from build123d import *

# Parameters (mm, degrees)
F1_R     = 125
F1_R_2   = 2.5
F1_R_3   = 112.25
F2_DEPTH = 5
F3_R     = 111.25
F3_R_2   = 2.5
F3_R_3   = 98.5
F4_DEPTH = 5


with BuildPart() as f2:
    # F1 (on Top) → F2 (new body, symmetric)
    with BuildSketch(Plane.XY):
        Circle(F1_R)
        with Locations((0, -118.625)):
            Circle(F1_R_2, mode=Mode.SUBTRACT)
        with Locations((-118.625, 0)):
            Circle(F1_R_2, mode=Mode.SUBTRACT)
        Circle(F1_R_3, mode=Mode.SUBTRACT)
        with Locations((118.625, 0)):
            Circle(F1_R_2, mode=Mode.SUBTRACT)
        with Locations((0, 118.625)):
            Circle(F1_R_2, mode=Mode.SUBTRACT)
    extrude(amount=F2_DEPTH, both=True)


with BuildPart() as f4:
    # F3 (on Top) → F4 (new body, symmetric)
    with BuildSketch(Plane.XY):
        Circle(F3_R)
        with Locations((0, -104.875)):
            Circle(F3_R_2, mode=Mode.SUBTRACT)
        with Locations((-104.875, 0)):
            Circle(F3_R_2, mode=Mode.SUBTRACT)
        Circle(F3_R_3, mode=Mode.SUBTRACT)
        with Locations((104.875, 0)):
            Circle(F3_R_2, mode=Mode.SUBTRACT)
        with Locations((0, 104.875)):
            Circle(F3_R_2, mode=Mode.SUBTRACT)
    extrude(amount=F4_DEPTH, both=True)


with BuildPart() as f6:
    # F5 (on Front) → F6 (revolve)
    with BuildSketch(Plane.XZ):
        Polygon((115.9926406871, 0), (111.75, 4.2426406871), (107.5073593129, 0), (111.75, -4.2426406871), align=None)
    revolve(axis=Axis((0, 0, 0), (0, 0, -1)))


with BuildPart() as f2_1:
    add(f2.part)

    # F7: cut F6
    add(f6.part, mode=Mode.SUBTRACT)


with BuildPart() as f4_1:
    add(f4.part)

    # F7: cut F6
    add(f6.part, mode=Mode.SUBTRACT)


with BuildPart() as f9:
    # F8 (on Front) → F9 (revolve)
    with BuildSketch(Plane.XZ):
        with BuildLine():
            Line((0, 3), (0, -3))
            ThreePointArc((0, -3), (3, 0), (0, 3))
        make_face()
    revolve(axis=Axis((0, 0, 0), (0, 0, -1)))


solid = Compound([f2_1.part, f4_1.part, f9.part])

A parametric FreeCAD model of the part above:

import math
import FreeCAD as App
import Part
import Sketcher

V = App.Vector
Q = App.Units.Quantity


def add_polygon(sketch, points):
    """Adds a closed chain of lines whose ends are joined by coincident constraints."""
    first, n = sketch.GeometryCount, len(points)
    for a, b in zip(points, points[1:] + points[:1]):
        sketch.addGeometry(Part.LineSegment(App.Vector(*a, 0), App.Vector(*b, 0)), False)
    for i in range(n):
        sketch.addConstraint(Sketcher.Constraint("Coincident", first + i, 2, first + (i + 1) % n, 1))

doc = App.newDocument("Part")
body = doc.addObject("PartDesign::Body", "Body")

# Sketch on XY plane
sketch1 = body.newObject("Sketcher::SketchObject", "Sketch")
sketch1.AttachmentSupport = (doc.getObject("XY_Plane"), [""])
sketch1.MapMode = "FlatFace"
sketch1.addGeometry([
    Part.Circle(V(0, 0, 0), V(0, 0, 1), 125),  # 0
    Part.Circle(V(0, -118.6, 0), V(0, 0, 1), 2.5),  # 1
    Part.Circle(V(-118.6, 0, 0), V(0, 0, 1), 2.5),  # 2
    Part.Circle(V(0, 0, 0), V(0, 0, 1), 112.2),  # 3
    Part.Circle(V(118.6, 0, 0), V(0, 0, 1), 2.5),  # 4
    Part.Circle(V(0, 118.6, 0), V(0, 0, 1), 2.5),  # 5
], False)
sketch1.addConstraint([
    Sketcher.Constraint("Coincident", 0, 3, -1, 1),
    Sketcher.Constraint("Coincident", 3, 3, -1, 1),
    Sketcher.Constraint("Equal", 1, 2),
    Sketcher.Constraint("Equal", 2, 4),
    Sketcher.Constraint("Equal", 4, 5),
    Sketcher.Constraint("Symmetric", 2, 3, 4, 3, -1, 1),
    Sketcher.Constraint("Symmetric", 1, 3, 5, 3, -1, 1),
    Sketcher.Constraint("PointOnObject", 1, 3, -2),
    Sketcher.Constraint("PointOnObject", 2, 3, -1),
    Sketcher.Constraint("Diameter", 0, Q("250 mm")),
    Sketcher.Constraint("Diameter", 1, Q("5 mm")),
    Sketcher.Constraint("Diameter", 3, Q("224.5 mm")),
    Sketcher.Constraint("DistanceX", 2, 3, 4, 3, Q("237.25 mm")),
    Sketcher.Constraint("DistanceY", 1, 3, 5, 3, Q("237.25 mm")),
])
pad1 = body.newObject("PartDesign::Pad", "Pad")
pad1.Profile = sketch1
pad1.Length = 10
pad1.Midplane = True
body2 = doc.addObject("PartDesign::Body", "Body001")

# Sketch on XY plane
sketch2 = body2.newObject("Sketcher::SketchObject", "Sketch001")
sketch2.AttachmentSupport = (doc.getObject("XY_Plane001"), [""])
sketch2.MapMode = "FlatFace"
sketch2.addGeometry([
    Part.Circle(V(0, 0, 0), V(0, 0, 1), 111.2),  # 0
    Part.Circle(V(0, -104.9, 0), V(0, 0, 1), 2.5),  # 1
    Part.Circle(V(-104.9, 0, 0), V(0, 0, 1), 2.5),  # 2
    Part.Circle(V(0, 0, 0), V(0, 0, 1), 98.5),  # 3
    Part.Circle(V(104.9, 0, 0), V(0, 0, 1), 2.5),  # 4
    Part.Circle(V(0, 104.9, 0), V(0, 0, 1), 2.5),  # 5
], False)
sketch2.addConstraint([
    Sketcher.Constraint("Coincident", 0, 3, -1, 1),
    Sketcher.Constraint("Coincident", 3, 3, -1, 1),
    Sketcher.Constraint("Equal", 1, 2),
    Sketcher.Constraint("Equal", 2, 4),
    Sketcher.Constraint("Equal", 4, 5),
    Sketcher.Constraint("Symmetric", 2, 3, 4, 3, -1, 1),
    Sketcher.Constraint("Symmetric", 1, 3, 5, 3, -1, 1),
    Sketcher.Constraint("PointOnObject", 1, 3, -2),
    Sketcher.Constraint("PointOnObject", 2, 3, -1),
    Sketcher.Constraint("Diameter", 1, Q("5 mm")),
    Sketcher.Constraint("Diameter", 3, Q("197 mm")),
    Sketcher.Constraint("Diameter", 0, Q("222.5 mm")),
    Sketcher.Constraint("DistanceX", 2, 3, 4, 3, Q("209.75 mm")),
    Sketcher.Constraint("DistanceY", 1, 3, 5, 3, Q("209.75 mm")),
])
pad2 = body2.newObject("PartDesign::Pad", "Pad001")
pad2.Profile = sketch2
pad2.Length = 10
pad2.Midplane = True
body3 = doc.addObject("PartDesign::Body", "Body002")

# Sketch on XZ plane
sketch3 = body3.newObject("Sketcher::SketchObject", "Sketch002")
sketch3.AttachmentSupport = (doc.getObject("XZ_Plane002"), [""])
sketch3.MapMode = "FlatFace"
add_polygon(sketch3, [(116, 0), (112, 4), (108, 0), (112, -4)])  # lines 0-3
sketch3.addConstraint([
    Sketcher.Constraint("Symmetric", 0, 2, 2, 2, -1),
    Sketcher.Constraint("PointOnObject", 1, 2, -1),
    Sketcher.Constraint("PointOnObject", 3, 2, -1),
    Sketcher.Constraint("Perpendicular", 0, 1),
    Sketcher.Constraint("Perpendicular", 1, 2),
    Sketcher.Constraint("Distance", 0, Q("6 mm")),
    Sketcher.Constraint("DistanceX", -1, 1, 0, 2, Q("111.75 mm")),
])
revolution = body3.newObject("PartDesign::Revolution", "Revolution")
revolution.Profile = sketch3
revolution.ReferenceAxis = (sketch3, ["V_Axis"])
revolution.Angle = 360
doc.recompute()

body4 = doc.addObject("PartDesign::Body", "Body003")
body4.BaseFeature = body3
boolean = body.newObject("PartDesign::Boolean", "Boolean")
boolean.Type = "Cut"
boolean.addObjects([body4])
doc.recompute()

boolean2 = body2.newObject("PartDesign::Boolean", "Boolean001")
boolean2.Type = "Cut"
boolean2.addObjects([body3])
body5 = doc.addObject("PartDesign::Body", "Body004")

# Sketch on XZ plane
sketch4 = body5.newObject("Sketcher::SketchObject", "Sketch003")
sketch4.AttachmentSupport = (doc.getObject("XZ_Plane004"), [""])
sketch4.MapMode = "FlatFace"
sketch4.addGeometry([
    Part.LineSegment(V(0, 3, 0), V(0, -3, 0)),
    Part.ArcOfCircle(Part.Circle(V(0, 0, 0), V(0, 0, 1), 3), math.radians(-90), math.radians(90)),
], False)
sketch4.addConstraint([
    Sketcher.Constraint("Coincident", 0, 1, 1, 2),
    Sketcher.Constraint("Coincident", 1, 1, 0, 2),
    Sketcher.Constraint("Vertical", 0),
    Sketcher.Constraint("Coincident", 1, 3, -1, 1),
    Sketcher.Constraint("PointOnObject", 0, 1, -2),
    Sketcher.Constraint("Radius", 1, Q("3 mm")),
])
revolution2 = body5.newObject("PartDesign::Revolution", "Revolution001")
revolution2.Profile = sketch4
revolution2.ReferenceAxis = (sketch4, ["V_Axis"])
revolution2.Angle = 360

doc.recompute()
